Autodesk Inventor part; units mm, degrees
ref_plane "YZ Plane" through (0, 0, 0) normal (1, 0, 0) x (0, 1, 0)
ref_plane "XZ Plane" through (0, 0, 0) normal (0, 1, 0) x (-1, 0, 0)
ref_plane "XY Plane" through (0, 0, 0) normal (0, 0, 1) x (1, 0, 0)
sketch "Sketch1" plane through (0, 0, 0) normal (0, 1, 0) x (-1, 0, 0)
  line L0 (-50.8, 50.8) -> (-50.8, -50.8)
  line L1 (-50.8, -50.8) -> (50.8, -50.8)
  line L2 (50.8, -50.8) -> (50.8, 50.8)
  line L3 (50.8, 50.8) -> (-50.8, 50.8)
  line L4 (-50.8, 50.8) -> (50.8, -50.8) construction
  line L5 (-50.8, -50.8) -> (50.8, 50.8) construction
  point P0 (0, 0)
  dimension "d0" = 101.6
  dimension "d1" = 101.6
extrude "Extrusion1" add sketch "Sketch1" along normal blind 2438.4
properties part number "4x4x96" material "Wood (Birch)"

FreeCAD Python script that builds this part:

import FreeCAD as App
import Part
import Sketcher

V = App.Vector
Q = App.Units.Quantity


def add_polygon(sketch, points):
    """Adds a closed chain of lines whose ends are joined by coincident constraints."""
    first, n = sketch.GeometryCount, len(points)
    for a, b in zip(points, points[1:] + points[:1]):
        sketch.addGeometry(Part.LineSegment(App.Vector(*a, 0), App.Vector(*b, 0)), False)
    for i in range(n):
        sketch.addConstraint(Sketcher.Constraint("Coincident", first + i, 2, first + (i + 1) % n, 1))

doc = App.newDocument("Part")
body = doc.addObject("PartDesign::Body", "Body")

sketch1 = body.newObject("Sketcher::SketchObject", "Sketch")
sketch1.AttachmentSupport = (doc.getObject("XZ_Plane"), [""])
sketch1.MapMode = "FlatFace"
add_polygon(sketch1, [(-50.8, 50.8), (50.8, 50.8), (50.8, -50.8), (-50.8, -50.8)])
sketch1.addConstraint(Sketcher.Constraint("Horizontal", 0))
sketch1.addConstraint(Sketcher.Constraint("Vertical", 1))
sketch1.addConstraint(Sketcher.Constraint("Horizontal", 2))
sketch1.addConstraint(Sketcher.Constraint("Vertical", 3))
sketch1.addConstraint(Sketcher.Constraint("Symmetric", 0, 2, 2, 2, -1, 1))
sketch1.addConstraint(Sketcher.Constraint("Equal", 2, 1))
sketch1.addConstraint(Sketcher.Constraint("DistanceX", 0, 1, 0, 2, Q("4 in")))
pad1 = body.newObject("PartDesign::Pad", "Pad")
pad1.Profile = sketch1
pad1.Length = Q("96 in")
pad1.Reversed = True

doc.recompute()
